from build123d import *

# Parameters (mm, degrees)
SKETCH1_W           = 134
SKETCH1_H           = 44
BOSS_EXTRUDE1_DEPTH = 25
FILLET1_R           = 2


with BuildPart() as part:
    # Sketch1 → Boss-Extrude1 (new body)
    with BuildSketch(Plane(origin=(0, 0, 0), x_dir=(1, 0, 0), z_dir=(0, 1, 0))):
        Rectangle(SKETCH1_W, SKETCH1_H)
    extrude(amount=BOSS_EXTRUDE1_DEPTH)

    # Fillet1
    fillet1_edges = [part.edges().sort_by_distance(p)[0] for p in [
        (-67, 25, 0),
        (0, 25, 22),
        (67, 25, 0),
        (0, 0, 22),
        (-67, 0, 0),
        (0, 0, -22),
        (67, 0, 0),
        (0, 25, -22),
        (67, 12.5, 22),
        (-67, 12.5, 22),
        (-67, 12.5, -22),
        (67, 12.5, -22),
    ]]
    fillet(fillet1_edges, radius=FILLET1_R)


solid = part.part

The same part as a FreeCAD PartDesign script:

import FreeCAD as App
import Part
import Sketcher
from FreeCAD import Vector
Q = App.Units.Quantity


def add_polygon(sketch, points):
    """Adds a closed chain of lines whose ends are joined by coincident constraints."""
    first, n = sketch.GeometryCount, len(points)
    for a, b in zip(points, points[1:] + points[:1]):
        sketch.addGeometry(Part.LineSegment(App.Vector(*a, 0), App.Vector(*b, 0)), False)
    for i in range(n):
        sketch.addConstraint(Sketcher.Constraint("Coincident", first + i, 2, first + (i + 1) % n, 1))

doc = App.newDocument("Part")
body = doc.addObject("PartDesign::Body", "Body")

sketch1 = body.newObject("Sketcher::SketchObject", "Sketch")
sketch1.AttachmentSupport = (doc.getObject("XZ_Plane"), [""])
sketch1.MapMode = "FlatFace"
add_polygon(sketch1, [(-67, -22), (-67, 22), (67, 22), (67, -22)])
sketch1.addConstraint(Sketcher.Constraint("Vertical", 0))
sketch1.addConstraint(Sketcher.Constraint("Horizontal", 1))
sketch1.addConstraint(Sketcher.Constraint("Vertical", 2))
sketch1.addConstraint(Sketcher.Constraint("Horizontal", 3))
sketch1.addConstraint(Sketcher.Constraint("Symmetric", 0, 2, 2, 2, -1, 1))
sketch1.addConstraint(Sketcher.Constraint("DistanceX", 1, 1, 1, 2, Q("134 mm")))
sketch1.addConstraint(Sketcher.Constraint("DistanceY", 0, 1, 0, 2, Q("44 mm")))
pad1 = body.newObject("PartDesign::Pad", "Pad")
pad1.Profile = sketch1
pad1.Length = 25
pad1.Reversed = True
doc.recompute()

fillet = body.newObject("PartDesign::Fillet", "Fillet")
fillet.Base = (pad1, ["Edge1"])
fillet.UseAllEdges = True
fillet.Radius = 2

doc.recompute()
